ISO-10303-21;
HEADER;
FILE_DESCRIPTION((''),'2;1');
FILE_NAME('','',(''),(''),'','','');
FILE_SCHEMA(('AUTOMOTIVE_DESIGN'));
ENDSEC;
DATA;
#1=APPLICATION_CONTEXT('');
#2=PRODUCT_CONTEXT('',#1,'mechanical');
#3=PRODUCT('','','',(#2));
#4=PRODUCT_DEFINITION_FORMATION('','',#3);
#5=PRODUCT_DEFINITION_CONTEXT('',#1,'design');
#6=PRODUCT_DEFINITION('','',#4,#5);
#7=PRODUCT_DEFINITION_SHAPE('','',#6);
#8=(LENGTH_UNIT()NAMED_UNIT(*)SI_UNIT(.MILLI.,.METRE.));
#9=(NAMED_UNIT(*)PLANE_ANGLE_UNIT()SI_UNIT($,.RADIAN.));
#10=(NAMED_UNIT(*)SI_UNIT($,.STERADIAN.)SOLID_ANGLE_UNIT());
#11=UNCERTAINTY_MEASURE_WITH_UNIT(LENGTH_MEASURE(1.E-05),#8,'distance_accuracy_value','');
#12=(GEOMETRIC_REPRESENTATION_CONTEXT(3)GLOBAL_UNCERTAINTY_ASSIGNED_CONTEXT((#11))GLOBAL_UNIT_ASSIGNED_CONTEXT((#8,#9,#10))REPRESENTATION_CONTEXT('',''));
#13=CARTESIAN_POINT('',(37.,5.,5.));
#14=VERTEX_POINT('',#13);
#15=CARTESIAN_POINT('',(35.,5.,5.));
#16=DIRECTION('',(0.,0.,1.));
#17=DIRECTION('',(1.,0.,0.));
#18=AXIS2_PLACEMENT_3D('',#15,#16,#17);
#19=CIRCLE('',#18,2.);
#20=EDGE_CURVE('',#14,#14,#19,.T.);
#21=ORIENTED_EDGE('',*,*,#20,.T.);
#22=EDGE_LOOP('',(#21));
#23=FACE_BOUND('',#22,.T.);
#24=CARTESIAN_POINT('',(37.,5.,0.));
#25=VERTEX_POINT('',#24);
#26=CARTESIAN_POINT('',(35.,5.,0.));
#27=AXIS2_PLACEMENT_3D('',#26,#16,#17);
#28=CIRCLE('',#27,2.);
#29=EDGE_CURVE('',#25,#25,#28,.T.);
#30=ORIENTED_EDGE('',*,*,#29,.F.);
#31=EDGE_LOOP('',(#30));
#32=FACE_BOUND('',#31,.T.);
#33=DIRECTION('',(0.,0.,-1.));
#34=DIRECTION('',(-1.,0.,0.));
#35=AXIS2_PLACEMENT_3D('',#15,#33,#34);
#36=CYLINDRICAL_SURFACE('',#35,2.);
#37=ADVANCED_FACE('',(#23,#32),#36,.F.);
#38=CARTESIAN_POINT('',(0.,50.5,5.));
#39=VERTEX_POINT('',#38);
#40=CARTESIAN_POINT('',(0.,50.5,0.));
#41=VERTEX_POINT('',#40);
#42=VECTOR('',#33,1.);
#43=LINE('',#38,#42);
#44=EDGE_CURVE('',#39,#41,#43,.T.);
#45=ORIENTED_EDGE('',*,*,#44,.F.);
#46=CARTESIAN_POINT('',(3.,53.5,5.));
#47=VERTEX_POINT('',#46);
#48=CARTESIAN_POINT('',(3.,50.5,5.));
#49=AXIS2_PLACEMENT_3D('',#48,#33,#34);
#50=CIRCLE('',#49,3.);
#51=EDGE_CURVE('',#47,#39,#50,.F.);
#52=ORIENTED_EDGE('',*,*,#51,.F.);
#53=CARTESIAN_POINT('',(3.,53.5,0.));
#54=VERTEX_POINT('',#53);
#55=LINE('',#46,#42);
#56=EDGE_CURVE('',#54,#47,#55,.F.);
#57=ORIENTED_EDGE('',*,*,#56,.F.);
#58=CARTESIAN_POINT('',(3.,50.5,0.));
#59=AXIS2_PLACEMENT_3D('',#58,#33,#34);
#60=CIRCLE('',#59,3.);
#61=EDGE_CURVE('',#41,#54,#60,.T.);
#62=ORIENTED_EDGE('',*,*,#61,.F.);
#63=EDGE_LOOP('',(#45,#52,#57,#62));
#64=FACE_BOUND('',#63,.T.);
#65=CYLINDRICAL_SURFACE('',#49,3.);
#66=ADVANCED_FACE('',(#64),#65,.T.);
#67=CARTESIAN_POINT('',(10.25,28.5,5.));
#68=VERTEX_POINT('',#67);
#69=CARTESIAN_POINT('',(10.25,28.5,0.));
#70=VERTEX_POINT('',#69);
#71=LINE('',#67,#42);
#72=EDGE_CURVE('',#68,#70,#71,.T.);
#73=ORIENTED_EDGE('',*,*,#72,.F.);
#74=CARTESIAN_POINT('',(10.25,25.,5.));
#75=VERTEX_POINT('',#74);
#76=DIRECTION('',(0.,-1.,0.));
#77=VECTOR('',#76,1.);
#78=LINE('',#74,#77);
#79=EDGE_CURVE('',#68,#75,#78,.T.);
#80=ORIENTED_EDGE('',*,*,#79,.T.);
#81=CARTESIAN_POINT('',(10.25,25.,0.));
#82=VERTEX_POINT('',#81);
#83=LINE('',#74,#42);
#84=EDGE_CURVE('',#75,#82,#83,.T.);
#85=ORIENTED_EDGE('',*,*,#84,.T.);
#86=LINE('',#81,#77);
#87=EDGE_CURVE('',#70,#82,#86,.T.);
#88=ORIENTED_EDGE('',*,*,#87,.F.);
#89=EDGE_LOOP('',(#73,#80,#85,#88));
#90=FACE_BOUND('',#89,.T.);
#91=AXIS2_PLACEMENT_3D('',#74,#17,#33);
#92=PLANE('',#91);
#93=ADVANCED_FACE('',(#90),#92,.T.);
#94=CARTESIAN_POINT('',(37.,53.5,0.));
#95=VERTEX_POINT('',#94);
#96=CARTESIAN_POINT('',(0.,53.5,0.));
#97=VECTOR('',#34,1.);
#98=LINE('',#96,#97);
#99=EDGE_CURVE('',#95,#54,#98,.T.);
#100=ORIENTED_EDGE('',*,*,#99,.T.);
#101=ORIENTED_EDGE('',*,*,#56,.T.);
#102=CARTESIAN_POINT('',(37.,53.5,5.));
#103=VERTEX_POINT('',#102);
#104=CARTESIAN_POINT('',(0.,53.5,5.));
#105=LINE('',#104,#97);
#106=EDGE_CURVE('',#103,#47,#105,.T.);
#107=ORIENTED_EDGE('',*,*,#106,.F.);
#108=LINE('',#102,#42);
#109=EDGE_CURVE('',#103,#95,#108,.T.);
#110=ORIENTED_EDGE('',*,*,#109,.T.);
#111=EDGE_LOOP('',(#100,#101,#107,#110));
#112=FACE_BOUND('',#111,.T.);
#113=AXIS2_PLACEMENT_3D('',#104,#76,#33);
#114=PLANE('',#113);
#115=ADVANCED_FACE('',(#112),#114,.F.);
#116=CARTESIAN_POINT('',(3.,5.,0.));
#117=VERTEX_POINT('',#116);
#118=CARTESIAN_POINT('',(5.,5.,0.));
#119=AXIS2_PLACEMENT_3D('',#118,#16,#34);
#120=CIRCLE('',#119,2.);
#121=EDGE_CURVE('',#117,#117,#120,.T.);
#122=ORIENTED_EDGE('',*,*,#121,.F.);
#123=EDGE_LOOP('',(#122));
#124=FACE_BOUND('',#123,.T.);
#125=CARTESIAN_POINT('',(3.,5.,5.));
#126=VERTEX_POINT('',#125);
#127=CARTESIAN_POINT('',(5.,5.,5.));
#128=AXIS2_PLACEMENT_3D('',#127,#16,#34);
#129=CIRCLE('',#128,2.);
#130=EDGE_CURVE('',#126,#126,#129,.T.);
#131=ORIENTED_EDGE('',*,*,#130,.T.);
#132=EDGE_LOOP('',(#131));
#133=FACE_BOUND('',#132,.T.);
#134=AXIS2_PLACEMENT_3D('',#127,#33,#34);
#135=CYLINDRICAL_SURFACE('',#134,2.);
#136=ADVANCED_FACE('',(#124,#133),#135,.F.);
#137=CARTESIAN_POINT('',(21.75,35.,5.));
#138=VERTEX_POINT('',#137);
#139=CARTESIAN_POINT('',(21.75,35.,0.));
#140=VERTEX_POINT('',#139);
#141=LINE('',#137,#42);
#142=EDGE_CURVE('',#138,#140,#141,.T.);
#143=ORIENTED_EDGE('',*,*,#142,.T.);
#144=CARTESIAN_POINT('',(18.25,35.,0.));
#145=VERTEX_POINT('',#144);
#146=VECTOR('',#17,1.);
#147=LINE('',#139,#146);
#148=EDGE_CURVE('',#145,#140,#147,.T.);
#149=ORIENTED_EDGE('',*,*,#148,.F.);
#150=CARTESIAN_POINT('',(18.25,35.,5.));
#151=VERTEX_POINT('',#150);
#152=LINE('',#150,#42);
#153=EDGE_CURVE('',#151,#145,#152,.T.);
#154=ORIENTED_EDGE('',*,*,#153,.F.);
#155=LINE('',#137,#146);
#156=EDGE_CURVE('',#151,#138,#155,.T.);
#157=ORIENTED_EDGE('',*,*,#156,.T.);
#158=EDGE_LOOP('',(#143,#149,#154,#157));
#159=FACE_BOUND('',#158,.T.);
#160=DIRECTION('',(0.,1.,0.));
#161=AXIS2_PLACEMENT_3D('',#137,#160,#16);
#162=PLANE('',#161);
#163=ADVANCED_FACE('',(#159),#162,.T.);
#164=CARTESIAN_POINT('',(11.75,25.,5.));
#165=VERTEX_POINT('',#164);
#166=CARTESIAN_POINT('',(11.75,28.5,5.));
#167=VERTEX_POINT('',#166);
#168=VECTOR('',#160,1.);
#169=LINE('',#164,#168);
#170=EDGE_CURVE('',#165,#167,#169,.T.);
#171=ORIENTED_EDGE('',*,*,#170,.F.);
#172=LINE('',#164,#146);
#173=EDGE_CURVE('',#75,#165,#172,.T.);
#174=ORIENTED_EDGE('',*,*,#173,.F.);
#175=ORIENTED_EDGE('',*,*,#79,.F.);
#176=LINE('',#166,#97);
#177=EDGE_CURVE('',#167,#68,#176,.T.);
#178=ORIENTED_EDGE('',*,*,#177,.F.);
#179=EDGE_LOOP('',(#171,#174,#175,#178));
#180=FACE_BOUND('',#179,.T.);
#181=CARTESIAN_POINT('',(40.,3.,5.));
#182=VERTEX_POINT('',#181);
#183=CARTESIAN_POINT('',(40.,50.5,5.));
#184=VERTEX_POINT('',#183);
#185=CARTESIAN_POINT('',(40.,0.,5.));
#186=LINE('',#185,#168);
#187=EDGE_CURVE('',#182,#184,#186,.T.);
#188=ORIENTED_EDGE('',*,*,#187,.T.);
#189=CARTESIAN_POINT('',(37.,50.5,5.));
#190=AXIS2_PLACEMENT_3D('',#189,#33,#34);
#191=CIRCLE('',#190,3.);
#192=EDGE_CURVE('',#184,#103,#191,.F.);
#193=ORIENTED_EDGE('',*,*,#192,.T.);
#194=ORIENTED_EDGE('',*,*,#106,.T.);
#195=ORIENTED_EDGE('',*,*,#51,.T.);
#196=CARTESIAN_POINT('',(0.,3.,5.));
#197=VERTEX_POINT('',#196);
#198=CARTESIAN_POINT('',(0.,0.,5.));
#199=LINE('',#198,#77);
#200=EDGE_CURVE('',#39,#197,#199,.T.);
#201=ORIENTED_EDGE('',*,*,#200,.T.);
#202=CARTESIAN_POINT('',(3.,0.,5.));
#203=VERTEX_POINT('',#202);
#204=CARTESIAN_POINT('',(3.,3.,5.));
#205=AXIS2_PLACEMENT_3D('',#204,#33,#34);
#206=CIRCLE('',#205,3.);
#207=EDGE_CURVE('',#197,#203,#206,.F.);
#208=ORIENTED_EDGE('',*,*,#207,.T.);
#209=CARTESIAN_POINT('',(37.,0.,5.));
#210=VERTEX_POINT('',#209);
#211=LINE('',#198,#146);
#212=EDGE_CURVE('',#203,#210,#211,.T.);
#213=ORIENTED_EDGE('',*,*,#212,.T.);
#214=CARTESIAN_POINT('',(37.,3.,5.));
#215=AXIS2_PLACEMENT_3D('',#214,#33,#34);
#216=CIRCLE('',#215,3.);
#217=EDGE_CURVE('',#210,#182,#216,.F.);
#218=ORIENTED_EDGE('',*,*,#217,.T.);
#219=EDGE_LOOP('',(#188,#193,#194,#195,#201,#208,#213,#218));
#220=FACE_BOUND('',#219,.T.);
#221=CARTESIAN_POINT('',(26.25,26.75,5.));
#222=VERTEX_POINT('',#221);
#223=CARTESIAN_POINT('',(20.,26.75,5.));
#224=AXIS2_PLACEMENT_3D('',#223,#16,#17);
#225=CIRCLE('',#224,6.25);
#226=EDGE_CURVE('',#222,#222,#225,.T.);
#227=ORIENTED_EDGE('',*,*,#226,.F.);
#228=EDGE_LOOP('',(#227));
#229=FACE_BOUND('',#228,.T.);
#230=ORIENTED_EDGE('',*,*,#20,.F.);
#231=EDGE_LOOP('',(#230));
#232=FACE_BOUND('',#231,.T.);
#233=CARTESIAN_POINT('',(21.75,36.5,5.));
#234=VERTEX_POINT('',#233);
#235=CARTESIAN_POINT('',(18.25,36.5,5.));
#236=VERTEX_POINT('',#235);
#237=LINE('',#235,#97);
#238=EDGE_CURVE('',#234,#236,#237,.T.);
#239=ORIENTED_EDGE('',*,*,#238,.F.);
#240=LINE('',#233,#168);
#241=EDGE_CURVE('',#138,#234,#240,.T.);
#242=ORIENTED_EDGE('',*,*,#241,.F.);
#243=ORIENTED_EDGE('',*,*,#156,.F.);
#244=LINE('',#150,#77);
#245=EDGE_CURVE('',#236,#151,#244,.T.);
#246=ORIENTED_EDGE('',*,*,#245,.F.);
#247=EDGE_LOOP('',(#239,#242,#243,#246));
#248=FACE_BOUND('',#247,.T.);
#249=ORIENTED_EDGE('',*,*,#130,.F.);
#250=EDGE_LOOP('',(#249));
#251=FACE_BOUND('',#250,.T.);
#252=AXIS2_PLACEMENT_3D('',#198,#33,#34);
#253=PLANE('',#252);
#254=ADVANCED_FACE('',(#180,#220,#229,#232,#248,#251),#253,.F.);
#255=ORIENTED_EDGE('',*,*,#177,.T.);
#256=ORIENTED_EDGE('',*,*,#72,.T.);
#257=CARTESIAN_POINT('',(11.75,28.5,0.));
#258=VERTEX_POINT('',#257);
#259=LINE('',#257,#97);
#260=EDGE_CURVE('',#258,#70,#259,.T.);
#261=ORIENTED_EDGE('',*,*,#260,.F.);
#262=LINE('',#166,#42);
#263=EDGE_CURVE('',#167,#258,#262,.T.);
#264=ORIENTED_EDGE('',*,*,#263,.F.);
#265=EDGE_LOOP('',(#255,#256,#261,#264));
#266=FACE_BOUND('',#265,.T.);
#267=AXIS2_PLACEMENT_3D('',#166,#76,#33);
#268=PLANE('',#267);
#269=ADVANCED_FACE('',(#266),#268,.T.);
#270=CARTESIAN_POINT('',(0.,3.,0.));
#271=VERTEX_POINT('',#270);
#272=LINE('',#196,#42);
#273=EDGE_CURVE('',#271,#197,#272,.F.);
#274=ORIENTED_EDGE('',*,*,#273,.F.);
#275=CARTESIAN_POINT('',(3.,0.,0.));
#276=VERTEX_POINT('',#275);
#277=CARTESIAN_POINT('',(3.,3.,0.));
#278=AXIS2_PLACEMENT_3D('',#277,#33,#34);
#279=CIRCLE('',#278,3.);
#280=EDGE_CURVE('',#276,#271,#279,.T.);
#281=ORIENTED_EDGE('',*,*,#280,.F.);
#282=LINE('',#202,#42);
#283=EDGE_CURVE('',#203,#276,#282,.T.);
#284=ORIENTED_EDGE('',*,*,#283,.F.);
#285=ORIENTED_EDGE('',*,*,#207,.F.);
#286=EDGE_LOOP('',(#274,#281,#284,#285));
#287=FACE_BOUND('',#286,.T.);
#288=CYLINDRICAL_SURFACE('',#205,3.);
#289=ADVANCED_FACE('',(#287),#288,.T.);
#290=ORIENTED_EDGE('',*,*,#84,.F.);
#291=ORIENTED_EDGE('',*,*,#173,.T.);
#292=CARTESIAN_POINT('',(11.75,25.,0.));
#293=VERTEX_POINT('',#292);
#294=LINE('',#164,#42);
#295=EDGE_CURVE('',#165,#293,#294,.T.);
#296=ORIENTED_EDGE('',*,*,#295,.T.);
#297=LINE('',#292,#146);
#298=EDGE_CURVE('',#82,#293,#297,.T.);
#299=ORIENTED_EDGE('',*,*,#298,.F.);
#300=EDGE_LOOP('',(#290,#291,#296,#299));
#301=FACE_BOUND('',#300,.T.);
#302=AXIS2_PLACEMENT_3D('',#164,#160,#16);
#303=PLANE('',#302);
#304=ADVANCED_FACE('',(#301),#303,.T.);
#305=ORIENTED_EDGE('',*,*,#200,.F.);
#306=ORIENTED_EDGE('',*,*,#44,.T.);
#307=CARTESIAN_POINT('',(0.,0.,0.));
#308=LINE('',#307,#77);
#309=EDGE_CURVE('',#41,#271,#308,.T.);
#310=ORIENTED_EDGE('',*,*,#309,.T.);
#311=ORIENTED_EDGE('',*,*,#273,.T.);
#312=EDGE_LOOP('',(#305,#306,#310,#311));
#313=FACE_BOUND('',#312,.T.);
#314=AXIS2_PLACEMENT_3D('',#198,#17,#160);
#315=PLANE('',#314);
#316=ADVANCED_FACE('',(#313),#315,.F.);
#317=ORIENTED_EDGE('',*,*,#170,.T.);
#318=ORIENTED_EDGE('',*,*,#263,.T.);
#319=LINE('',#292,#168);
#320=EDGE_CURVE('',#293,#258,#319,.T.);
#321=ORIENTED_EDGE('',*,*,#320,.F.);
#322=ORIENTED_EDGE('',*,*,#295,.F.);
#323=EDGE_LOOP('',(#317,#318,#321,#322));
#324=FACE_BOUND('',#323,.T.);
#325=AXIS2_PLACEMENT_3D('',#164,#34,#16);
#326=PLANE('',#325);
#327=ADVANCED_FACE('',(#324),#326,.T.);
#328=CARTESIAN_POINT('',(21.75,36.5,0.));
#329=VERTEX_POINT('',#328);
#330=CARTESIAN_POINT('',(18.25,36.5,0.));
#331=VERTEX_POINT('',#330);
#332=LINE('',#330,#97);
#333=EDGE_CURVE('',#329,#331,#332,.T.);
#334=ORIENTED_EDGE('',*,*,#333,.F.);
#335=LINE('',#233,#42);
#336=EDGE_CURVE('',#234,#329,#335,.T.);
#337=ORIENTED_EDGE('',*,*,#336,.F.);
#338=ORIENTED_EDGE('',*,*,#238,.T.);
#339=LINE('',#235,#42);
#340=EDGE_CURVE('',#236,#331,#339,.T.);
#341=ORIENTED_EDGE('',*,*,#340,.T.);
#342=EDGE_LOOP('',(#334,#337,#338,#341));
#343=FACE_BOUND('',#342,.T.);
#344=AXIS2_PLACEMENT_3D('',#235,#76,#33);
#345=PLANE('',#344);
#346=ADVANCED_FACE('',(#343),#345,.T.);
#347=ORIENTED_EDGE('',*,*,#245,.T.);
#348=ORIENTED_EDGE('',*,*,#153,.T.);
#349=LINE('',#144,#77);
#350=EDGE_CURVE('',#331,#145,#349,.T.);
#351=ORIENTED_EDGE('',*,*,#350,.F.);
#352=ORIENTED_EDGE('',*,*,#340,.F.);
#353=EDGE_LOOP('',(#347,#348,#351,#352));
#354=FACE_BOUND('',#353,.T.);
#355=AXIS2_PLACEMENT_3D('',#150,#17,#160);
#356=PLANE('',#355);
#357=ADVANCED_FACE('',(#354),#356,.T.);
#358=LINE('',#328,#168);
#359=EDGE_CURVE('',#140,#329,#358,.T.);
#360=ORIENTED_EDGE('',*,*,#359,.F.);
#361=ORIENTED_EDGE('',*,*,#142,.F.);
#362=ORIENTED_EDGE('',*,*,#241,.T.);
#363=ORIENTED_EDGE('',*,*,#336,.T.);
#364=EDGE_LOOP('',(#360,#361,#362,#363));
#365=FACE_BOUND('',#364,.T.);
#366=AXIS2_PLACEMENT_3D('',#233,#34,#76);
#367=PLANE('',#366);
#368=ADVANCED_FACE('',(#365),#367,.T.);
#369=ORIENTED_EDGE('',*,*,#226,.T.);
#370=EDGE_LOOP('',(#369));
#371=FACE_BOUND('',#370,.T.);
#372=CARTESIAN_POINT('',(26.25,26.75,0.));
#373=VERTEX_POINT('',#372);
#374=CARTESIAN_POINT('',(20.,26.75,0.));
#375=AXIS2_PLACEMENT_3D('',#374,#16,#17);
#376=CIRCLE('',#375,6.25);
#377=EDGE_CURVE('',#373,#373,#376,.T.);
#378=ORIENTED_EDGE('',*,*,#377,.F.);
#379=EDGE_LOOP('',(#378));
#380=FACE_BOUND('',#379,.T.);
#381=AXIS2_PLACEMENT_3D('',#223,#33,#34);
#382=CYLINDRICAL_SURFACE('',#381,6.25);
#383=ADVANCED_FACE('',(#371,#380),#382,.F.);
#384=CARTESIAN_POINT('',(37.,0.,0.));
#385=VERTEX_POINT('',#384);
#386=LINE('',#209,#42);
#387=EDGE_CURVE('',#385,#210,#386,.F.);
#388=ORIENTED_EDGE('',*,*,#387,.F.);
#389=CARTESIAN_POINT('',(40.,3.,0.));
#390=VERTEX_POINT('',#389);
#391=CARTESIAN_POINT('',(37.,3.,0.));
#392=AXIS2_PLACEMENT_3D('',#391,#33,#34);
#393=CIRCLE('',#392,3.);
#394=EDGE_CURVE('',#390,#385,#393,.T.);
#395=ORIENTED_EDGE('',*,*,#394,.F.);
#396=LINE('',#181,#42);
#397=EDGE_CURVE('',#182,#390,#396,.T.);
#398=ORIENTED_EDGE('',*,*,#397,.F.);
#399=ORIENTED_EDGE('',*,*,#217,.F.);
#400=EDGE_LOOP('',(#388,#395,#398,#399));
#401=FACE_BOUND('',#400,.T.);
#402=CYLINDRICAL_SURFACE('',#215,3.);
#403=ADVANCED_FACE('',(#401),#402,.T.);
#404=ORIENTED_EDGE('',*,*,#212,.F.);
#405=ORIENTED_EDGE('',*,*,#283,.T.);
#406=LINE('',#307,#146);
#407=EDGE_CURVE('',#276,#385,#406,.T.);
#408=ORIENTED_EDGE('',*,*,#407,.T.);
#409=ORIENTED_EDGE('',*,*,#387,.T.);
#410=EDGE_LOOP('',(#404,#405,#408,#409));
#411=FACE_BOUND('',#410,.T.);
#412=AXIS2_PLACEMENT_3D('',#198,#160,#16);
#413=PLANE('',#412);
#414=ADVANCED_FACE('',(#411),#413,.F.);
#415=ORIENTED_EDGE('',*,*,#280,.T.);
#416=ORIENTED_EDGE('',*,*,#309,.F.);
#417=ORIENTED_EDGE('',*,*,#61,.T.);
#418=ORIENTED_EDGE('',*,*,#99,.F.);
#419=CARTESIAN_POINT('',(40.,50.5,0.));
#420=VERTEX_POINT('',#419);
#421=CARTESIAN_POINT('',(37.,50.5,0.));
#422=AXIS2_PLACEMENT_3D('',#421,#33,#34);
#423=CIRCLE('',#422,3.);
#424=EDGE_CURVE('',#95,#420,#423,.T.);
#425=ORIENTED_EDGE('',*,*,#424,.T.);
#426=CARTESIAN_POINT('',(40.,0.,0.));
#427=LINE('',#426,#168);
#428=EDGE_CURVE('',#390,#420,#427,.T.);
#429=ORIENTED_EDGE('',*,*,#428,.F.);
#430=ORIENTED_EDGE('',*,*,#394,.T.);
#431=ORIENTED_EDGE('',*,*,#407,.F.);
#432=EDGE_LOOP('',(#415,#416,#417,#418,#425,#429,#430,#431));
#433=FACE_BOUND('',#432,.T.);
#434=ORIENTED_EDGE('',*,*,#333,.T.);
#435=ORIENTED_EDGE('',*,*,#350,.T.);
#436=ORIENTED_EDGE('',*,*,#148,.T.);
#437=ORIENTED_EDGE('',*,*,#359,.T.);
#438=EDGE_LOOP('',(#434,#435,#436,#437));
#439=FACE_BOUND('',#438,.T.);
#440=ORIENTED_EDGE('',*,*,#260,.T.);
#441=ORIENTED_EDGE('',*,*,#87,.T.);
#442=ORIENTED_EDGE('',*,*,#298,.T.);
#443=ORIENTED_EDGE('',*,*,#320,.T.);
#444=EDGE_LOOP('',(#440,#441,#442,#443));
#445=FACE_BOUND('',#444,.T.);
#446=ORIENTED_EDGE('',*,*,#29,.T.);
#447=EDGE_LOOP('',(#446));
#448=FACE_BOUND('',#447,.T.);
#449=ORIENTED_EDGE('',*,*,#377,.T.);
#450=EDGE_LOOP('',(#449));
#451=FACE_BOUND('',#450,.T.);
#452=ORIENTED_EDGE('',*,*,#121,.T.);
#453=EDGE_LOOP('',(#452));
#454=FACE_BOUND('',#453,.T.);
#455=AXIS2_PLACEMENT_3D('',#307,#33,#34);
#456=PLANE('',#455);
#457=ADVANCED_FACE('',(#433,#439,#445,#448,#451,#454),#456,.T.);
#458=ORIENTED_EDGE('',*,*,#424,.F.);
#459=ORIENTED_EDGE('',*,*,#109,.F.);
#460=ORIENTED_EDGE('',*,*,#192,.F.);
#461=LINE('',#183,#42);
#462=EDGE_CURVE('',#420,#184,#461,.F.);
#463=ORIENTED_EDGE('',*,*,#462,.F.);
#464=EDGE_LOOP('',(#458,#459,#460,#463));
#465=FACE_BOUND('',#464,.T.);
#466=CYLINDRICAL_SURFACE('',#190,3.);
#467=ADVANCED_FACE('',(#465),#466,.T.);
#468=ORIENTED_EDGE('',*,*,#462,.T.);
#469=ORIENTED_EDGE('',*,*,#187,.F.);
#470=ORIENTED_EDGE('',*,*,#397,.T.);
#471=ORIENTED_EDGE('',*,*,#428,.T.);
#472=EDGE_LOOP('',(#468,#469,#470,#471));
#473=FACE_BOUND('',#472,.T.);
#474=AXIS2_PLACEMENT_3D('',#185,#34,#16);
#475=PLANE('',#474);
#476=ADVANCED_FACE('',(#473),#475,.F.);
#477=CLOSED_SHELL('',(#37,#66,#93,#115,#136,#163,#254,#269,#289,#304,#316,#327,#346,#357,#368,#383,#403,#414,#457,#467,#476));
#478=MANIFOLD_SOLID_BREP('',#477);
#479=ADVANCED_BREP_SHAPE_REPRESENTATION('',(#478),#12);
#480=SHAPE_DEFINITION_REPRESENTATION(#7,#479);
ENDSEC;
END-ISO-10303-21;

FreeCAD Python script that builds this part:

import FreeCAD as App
import Part
import Sketcher
from FreeCAD import Vector
Q = App.Units.Quantity


def edges_at(feature, points):
    """Names of the edges that pass closest to the given points."""
    edges = feature.Shape.Edges
    near = lambda p: min(range(len(edges)), key=lambda i: edges[i].distToShape(Part.Vertex(*p))[0])
    return sorted({f"Edge{near(p) + 1}" for p in points})

doc = App.newDocument("Part")
params = doc.addObject("Spreadsheet::Sheet", "Params")
for row, (alias, value) in enumerate([
    ("sketch1_diameter", "4 mm"),
    ("sketch1_diameter2", "12.5 mm"),
    ("sketch1_width", "40 mm"),
    ("sketch1_width2", "1.5 mm"),
    ("sketch1_width3", "3.5 mm"),
    ("pad1_length", "5 mm"),
    ("fillet_radius", "3 mm"),
], start=1):
    params.set(f"A{row}", alias)
    params.set(f"B{row}", "=" + value)
    params.setAlias(f"B{row}", alias)

body = doc.addObject("PartDesign::Body", "Body")

sketch1 = body.newObject("Sketcher::SketchObject", "Sketch")
sketch1.AttachmentSupport = (doc.getObject("XY_Plane"), [""])
sketch1.MapMode = "FlatFace"
sketch1.addGeometry([
    Part.LineSegment(Vector(0, 53.5, 0), Vector(0, 0, 0)),
    Part.LineSegment(Vector(0, 0, 0), Vector(40, 0, 0)),
    Part.LineSegment(Vector(40, 0, 0), Vector(40, 53.5, 0)),
    Part.LineSegment(Vector(40, 53.5, 0), Vector(0, 53.5, 0)),
    Part.Circle(Vector(5, 5, 0), Vector(0, 0, 1), 2),
    Part.Circle(Vector(35, 5, 0), Vector(0, 0, 1), 2),
    Part.LineSegment(Vector(11.75, 25, 0), Vector(10.25, 25, 0)),
    Part.LineSegment(Vector(10.25, 25, 0), Vector(10.25, 28.5, 0)),
    Part.LineSegment(Vector(10.25, 28.5, 0), Vector(11.75, 28.5, 0)),
    Part.LineSegment(Vector(11.75, 28.5, 0), Vector(11.75, 25, 0)),
    Part.Circle(Vector(20, 26.75, 0), Vector(0, 0, 1), 6.25),
    Part.LineSegment(Vector(21.75, 35, 0), Vector(18.25, 35, 0)),
    Part.LineSegment(Vector(18.25, 35, 0), Vector(18.25, 36.5, 0)),
    Part.LineSegment(Vector(18.25, 36.5, 0), Vector(21.75, 36.5, 0)),
    Part.LineSegment(Vector(21.75, 36.5, 0), Vector(21.75, 35, 0)),
], False)
sketch1.addConstraint([
    Sketcher.Constraint("Coincident", 0, 2, 1, 1),
    Sketcher.Constraint("Coincident", 1, 2, 2, 1),
    Sketcher.Constraint("Coincident", 2, 2, 3, 1),
    Sketcher.Constraint("Coincident", 3, 2, 0, 1),
    Sketcher.Constraint("Coincident", 6, 2, 7, 1),
    Sketcher.Constraint("Coincident", 7, 2, 8, 1),
    Sketcher.Constraint("Coincident", 8, 2, 9, 1),
    Sketcher.Constraint("Coincident", 9, 2, 6, 1),
    Sketcher.Constraint("Coincident", 11, 2, 12, 1),
    Sketcher.Constraint("Coincident", 12, 2, 13, 1),
    Sketcher.Constraint("Coincident", 13, 2, 14, 1),
    Sketcher.Constraint("Coincident", 14, 2, 11, 1),
    Sketcher.Constraint("Vertical", 0),
    Sketcher.Constraint("Horizontal", 1),
    Sketcher.Constraint("Vertical", 2),
    Sketcher.Constraint("Horizontal", 3),
    Sketcher.Constraint("Horizontal", 6),
    Sketcher.Constraint("Vertical", 7),
    Sketcher.Constraint("Horizontal", 8),
    Sketcher.Constraint("Vertical", 9),
    Sketcher.Constraint("Horizontal", 11),
    Sketcher.Constraint("Vertical", 12),
    Sketcher.Constraint("Horizontal", 13),
    Sketcher.Constraint("Vertical", 14),
    Sketcher.Constraint("Coincident", 0, 2, -1, 1),
    Sketcher.Constraint("Equal", 4, 5),
    Sketcher.Constraint("Horizontal", 4, 3, 5, 3),
    Sketcher.Constraint("Equal", 13, 7),
    Sketcher.Constraint("Equal", 8, 12),
    Sketcher.Constraint("Diameter", 4, Q("4 mm")),
    Sketcher.Constraint("Diameter", 10, Q("12.5 mm")),
    Sketcher.Constraint("DistanceX", 1, 1, 1, 2, Q("40 mm")),
    Sketcher.Constraint("DistanceX", 6, 2, 6, 1, Q("1.5 mm")),
    Sketcher.Constraint("DistanceX", 11, 2, 11, 1, Q("3.5 mm")),
    Sketcher.Constraint("DistanceY", 0, 2, 0, 1, Q("53.5 mm")),
    Sketcher.Constraint("DistanceX", -1, 1, 4, 3, Q("5 mm")),
    Sketcher.Constraint("DistanceY", -1, 1, 4, 3, Q("5 mm")),
    Sketcher.Constraint("DistanceX", -1, 1, 5, 3, Q("35 mm")),
    Sketcher.Constraint("DistanceX", -1, 1, 10, 3, Q("20 mm")),
    Sketcher.Constraint("DistanceY", -1, 1, 6, 2, Q("25 mm")),
    Sketcher.Constraint("DistanceY", -1, 1, 11, 2, Q("35 mm")),
    Sketcher.Constraint("DistanceX", 7, 2, 11, 2, Q("8 mm")),
    Sketcher.Constraint("DistanceY", -1, 1, 10, 3, Q("26.75 mm")),
    Sketcher.Constraint("DistanceX", -1, 1, 6, 2, Q("10.25 mm")),
])
sketch1.setExpression("Constraints[29]", "Params.sketch1_diameter")
sketch1.setExpression("Constraints[30]", "Params.sketch1_diameter2")
sketch1.setExpression("Constraints[31]", "Params.sketch1_width")
sketch1.setExpression("Constraints[32]", "Params.sketch1_width2")
sketch1.setExpression("Constraints[33]", "Params.sketch1_width3")
pad1 = body.newObject("PartDesign::Pad", "Pad")
pad1.Profile = sketch1
pad1.setExpression("Length", "Params.pad1_length")
doc.recompute()

fillet = body.newObject("PartDesign::Fillet", "Fillet")
fillet.Base = (pad1, edges_at(pad1, [
    (0, 53.5, 2.5),
    (40, 53.5, 2.5),
    (40, 0, 2.5),
    (0, 0, 2.5),
]))
fillet.setExpression("Radius", "Params.fillet_radius")

doc.recompute()
